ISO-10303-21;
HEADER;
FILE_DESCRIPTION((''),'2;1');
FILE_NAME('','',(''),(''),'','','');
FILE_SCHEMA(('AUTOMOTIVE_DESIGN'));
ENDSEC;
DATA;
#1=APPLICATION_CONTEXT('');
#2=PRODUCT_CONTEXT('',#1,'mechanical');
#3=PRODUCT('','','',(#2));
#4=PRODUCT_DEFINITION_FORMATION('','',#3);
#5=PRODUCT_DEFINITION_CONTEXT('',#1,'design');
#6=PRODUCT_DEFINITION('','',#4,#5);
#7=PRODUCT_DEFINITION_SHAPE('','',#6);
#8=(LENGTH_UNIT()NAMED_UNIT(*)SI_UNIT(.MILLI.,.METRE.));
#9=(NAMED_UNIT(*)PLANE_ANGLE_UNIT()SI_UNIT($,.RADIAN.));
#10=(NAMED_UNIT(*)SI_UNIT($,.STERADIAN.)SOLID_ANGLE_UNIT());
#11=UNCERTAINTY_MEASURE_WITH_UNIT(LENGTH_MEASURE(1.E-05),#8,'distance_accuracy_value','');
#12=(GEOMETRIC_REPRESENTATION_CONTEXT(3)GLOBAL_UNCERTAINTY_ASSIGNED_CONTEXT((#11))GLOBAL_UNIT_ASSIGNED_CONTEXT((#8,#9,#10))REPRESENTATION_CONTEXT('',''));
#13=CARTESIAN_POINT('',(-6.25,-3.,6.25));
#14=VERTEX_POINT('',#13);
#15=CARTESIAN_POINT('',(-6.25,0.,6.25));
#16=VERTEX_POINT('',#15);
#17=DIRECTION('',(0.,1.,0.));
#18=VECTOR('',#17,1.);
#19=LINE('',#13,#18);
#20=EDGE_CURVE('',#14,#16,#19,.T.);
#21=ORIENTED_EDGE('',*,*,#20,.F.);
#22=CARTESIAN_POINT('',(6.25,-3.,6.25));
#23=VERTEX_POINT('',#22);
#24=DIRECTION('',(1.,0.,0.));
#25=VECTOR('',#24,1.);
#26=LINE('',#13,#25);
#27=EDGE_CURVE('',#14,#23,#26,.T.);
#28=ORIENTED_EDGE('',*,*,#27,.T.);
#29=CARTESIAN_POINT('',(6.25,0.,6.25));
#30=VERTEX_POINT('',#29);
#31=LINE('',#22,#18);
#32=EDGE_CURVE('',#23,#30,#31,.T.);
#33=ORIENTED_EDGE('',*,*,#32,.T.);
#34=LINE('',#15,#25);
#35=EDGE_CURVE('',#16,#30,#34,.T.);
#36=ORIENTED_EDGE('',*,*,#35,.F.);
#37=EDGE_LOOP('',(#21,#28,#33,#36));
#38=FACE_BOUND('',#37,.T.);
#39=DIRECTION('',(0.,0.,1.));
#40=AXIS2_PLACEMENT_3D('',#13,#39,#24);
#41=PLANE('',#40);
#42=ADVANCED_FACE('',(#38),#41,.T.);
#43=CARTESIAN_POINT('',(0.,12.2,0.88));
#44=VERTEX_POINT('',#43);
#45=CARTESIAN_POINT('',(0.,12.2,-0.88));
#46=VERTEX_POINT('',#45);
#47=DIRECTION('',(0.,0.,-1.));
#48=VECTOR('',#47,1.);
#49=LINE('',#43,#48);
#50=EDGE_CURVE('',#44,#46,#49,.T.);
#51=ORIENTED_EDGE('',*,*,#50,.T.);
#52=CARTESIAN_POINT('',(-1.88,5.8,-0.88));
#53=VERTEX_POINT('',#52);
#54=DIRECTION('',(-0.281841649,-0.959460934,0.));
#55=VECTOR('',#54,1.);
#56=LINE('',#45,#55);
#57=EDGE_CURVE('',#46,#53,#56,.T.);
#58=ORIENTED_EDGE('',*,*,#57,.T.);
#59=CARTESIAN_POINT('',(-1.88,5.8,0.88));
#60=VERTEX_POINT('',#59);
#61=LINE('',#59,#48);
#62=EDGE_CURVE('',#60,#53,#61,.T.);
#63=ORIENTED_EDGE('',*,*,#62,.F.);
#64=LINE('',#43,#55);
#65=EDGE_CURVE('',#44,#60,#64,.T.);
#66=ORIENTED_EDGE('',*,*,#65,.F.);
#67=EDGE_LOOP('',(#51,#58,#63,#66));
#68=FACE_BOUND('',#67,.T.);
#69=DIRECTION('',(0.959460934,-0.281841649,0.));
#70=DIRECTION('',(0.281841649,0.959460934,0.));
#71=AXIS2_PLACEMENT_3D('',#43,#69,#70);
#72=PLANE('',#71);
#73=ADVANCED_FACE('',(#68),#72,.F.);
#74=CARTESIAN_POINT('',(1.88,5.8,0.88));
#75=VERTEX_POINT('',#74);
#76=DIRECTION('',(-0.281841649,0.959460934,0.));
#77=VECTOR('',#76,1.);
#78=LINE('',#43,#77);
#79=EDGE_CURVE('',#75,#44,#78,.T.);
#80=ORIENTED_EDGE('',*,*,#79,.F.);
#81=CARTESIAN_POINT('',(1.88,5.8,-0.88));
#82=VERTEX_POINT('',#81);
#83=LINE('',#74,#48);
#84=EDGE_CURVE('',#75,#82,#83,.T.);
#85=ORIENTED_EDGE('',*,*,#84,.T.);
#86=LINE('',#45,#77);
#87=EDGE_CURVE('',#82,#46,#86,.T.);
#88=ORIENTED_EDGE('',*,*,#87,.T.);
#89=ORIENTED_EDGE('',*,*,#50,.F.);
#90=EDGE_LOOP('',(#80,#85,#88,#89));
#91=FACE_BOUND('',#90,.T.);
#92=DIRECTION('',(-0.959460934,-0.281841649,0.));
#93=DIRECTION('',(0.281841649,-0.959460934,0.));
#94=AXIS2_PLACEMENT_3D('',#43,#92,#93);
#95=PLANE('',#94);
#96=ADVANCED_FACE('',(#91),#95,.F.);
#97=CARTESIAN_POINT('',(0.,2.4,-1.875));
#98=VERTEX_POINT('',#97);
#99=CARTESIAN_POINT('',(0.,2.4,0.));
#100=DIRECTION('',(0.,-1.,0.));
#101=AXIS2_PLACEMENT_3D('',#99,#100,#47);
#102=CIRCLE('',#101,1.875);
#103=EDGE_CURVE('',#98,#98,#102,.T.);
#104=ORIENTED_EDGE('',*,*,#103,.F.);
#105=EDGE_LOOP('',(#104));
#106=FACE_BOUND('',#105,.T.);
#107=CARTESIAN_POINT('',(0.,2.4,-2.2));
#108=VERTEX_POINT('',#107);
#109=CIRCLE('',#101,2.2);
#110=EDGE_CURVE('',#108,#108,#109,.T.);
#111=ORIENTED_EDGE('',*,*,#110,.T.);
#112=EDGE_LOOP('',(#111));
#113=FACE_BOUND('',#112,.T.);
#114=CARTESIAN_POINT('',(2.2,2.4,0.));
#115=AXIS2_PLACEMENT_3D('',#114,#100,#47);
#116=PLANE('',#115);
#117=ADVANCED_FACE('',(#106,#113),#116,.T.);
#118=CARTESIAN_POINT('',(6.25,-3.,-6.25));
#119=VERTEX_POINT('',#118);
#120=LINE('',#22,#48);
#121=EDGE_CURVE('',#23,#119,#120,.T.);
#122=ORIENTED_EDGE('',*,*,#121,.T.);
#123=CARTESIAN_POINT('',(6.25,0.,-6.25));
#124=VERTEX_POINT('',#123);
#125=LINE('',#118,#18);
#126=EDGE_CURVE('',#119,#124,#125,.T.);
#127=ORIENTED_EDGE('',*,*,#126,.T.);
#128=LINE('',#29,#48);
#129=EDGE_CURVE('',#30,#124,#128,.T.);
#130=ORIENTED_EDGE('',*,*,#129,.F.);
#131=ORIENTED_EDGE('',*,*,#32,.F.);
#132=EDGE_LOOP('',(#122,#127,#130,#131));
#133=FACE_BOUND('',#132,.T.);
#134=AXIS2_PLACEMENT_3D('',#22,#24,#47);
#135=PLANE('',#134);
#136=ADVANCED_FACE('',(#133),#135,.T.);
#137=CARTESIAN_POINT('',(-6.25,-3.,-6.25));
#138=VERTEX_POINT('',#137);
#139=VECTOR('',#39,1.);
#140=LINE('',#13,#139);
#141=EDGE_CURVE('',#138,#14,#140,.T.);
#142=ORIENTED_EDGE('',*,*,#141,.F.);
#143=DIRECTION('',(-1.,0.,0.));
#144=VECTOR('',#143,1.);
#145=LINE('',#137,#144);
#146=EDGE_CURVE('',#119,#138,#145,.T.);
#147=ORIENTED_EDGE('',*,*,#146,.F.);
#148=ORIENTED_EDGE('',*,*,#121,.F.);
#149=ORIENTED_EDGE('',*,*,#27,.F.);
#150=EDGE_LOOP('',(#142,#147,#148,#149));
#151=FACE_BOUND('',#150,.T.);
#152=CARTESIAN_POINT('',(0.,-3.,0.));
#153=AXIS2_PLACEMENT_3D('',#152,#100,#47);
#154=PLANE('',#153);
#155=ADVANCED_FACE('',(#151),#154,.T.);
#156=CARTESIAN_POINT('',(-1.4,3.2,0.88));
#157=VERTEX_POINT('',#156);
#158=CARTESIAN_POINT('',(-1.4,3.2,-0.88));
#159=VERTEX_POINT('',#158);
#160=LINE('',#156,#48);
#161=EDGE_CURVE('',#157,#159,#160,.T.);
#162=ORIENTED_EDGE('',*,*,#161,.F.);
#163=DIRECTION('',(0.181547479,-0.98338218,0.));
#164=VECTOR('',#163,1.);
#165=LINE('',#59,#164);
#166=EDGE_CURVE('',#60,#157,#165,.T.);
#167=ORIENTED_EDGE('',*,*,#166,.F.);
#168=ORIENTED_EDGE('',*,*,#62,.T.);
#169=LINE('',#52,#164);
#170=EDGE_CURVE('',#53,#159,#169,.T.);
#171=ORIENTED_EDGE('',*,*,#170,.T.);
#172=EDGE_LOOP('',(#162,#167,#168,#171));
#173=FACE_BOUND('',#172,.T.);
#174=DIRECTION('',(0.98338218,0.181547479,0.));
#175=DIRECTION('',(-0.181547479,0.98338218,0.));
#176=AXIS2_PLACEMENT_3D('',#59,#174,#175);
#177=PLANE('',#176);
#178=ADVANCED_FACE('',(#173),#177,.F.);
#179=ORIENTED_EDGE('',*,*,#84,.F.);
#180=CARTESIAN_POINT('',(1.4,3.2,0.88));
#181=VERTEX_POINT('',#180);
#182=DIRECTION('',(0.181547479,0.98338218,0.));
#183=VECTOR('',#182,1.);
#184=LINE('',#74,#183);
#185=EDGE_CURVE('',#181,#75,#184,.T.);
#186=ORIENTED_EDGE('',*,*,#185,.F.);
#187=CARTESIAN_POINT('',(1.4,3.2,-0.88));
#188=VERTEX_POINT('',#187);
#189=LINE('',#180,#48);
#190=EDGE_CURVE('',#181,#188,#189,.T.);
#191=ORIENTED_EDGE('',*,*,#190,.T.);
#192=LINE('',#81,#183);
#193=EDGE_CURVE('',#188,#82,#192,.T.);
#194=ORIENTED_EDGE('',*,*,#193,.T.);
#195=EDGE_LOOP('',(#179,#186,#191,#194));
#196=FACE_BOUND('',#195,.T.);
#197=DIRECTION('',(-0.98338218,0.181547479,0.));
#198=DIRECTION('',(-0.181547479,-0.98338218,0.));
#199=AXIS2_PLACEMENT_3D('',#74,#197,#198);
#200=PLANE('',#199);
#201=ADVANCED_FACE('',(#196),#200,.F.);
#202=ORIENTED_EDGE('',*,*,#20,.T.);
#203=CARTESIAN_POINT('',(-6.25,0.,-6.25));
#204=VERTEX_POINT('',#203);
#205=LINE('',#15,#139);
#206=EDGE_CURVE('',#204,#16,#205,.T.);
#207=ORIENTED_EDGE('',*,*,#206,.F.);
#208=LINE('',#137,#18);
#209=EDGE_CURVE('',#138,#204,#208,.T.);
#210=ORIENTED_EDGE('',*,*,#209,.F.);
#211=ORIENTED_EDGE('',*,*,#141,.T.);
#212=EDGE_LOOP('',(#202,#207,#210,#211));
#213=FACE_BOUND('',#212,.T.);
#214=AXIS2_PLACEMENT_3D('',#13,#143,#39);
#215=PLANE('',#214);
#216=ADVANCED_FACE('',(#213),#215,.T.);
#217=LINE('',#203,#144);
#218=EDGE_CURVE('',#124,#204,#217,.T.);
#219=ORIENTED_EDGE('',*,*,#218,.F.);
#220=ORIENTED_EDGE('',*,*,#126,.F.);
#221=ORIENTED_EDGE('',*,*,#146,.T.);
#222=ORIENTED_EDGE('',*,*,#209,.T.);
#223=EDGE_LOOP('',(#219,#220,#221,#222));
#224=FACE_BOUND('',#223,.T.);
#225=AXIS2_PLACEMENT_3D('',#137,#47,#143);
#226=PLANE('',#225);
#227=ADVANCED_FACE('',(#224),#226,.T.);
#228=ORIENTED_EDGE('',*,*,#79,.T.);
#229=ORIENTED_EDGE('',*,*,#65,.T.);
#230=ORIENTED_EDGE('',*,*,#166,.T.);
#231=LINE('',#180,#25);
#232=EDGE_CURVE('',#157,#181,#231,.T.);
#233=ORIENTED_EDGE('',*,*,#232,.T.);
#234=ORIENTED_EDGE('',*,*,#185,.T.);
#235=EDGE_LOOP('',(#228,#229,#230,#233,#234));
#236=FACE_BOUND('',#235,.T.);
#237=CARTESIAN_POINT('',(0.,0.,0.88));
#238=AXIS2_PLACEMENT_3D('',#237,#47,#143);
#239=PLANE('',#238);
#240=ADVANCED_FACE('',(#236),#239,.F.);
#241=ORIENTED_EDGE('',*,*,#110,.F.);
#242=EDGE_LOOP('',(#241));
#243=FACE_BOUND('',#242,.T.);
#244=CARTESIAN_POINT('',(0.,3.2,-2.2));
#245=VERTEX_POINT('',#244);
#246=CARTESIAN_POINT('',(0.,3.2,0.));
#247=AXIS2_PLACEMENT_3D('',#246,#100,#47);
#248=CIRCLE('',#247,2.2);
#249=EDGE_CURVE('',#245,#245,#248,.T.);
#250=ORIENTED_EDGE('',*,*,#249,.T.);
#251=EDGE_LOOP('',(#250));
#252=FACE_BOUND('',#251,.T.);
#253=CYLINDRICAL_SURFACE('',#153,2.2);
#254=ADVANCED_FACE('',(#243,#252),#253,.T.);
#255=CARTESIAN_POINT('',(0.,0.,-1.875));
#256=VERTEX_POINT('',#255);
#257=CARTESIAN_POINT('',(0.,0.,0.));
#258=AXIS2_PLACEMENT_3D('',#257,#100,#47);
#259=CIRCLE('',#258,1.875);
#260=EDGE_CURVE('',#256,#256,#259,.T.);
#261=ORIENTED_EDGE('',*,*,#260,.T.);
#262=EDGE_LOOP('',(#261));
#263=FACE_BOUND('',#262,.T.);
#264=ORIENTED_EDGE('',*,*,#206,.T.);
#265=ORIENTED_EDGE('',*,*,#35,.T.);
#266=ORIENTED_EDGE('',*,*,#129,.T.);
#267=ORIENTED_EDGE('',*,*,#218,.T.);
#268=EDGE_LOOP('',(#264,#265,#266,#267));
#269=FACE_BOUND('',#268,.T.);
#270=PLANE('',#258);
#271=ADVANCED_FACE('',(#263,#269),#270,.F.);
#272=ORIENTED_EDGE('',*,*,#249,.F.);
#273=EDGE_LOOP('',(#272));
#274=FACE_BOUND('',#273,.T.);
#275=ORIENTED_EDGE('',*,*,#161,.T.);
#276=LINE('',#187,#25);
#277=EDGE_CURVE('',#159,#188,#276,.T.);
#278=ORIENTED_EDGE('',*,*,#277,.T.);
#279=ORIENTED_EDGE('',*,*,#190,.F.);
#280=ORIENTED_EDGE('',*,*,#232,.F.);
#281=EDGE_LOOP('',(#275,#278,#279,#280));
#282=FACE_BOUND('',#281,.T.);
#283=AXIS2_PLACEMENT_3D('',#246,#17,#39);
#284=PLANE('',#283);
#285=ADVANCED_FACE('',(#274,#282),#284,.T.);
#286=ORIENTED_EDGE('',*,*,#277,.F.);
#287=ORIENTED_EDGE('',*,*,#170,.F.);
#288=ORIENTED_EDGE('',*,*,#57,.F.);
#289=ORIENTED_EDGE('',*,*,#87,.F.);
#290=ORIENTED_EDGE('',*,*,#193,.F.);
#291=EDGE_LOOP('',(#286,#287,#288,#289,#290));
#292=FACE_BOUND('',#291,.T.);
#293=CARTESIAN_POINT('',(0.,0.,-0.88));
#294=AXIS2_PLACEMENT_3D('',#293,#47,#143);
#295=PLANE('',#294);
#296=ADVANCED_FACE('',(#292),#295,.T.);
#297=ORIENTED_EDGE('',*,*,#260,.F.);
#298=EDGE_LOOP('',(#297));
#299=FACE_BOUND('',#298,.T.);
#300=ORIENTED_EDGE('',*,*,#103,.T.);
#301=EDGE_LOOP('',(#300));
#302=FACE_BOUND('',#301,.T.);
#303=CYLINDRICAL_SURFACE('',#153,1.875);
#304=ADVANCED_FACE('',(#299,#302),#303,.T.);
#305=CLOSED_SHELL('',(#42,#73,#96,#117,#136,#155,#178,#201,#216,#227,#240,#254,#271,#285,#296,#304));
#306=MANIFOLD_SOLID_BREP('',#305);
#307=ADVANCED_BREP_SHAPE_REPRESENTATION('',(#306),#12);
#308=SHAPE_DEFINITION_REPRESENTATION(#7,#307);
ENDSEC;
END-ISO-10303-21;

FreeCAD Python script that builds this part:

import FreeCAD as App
import Part
import Sketcher

V = App.Vector
Q = App.Units.Quantity


def add_polygon(sketch, points):
    """Adds a closed chain of lines whose ends are joined by coincident constraints."""
    first, n = sketch.GeometryCount, len(points)
    for a, b in zip(points, points[1:] + points[:1]):
        sketch.addGeometry(Part.LineSegment(App.Vector(*a, 0), App.Vector(*b, 0)), False)
    for i in range(n):
        sketch.addConstraint(Sketcher.Constraint("Coincident", first + i, 2, first + (i + 1) % n, 1))

doc = App.newDocument("Part")
params = doc.addObject("Spreadsheet::Sheet", "Params")
for row, (alias, value) in enumerate([
    ("sketch1_width", "12.5 mm"),
    ("pad1_length", "3 mm"),
    ("sketch2_width", "2.2 mm"),
    ("sketch2_height", "3.2 mm"),
    ("sketch2_height2", "2.4 mm"),
    ("revolution_angle", "360 deg"),
    ("sketch3_width", "2.8 mm"),
    ("pad2_length", "1.76 mm"),
], start=1):
    params.set(f"A{row}", alias)
    params.set(f"B{row}", "=" + value)
    params.setAlias(f"B{row}", alias)

body = doc.addObject("PartDesign::Body", "Body")

# Sketch on XZ plane
sketch1 = doc.addObject("Sketcher::SketchObject", "Sketch")
body.addObject(sketch1)
sketch1.AttachmentSupport = (doc.XZ_Plane, [""])
sketch1.MapMode = "FlatFace"
add_polygon(sketch1, [(-6.25, -6.25), (-6.25, 6.25), (6.25, 6.25), (6.25, -6.25)])  # lines 0-3
sketch1.addConstraint([
    Sketcher.Constraint("Vertical", 0),
    Sketcher.Constraint("Horizontal", 1),
    Sketcher.Constraint("Vertical", 2),
    Sketcher.Constraint("Horizontal", 3),
    Sketcher.Constraint("Symmetric", 0, 2, 2, 2, -1, 1),
    Sketcher.Constraint("Equal", 3, 0),
    Sketcher.Constraint("DistanceX", 1, 1, 1, 2, Q("12.5 mm")),
])
sketch1.setExpression("Constraints[10]", "Params.sketch1_width")
pad1 = doc.addObject("PartDesign::Pad", "Pad")
body.addObject(pad1)
pad1.Profile = sketch1
pad1.setExpression("Length", "Params.pad1_length")

# Sketch on XY plane
sketch2 = doc.addObject("Sketcher::SketchObject", "Sketch001")
body.addObject(sketch2)
sketch2.AttachmentSupport = (doc.XY_Plane, [""])
sketch2.MapMode = "FlatFace"
add_polygon(sketch2, [(2.2, 3.2), (0, 3.2), (0, 0), (1.875, 0), (1.875, 2.4), (2.2, 2.4)])  # lines 0-5
sketch2.addConstraint([
    Sketcher.Constraint("Horizontal", 0),
    Sketcher.Constraint("Vertical", 1),
    Sketcher.Constraint("Horizontal", 2),
    Sketcher.Constraint("Vertical", 3),
    Sketcher.Constraint("Horizontal", 4),
    Sketcher.Constraint("Vertical", 5),
    Sketcher.Constraint("Coincident", 1, 2, -1, 1),
    Sketcher.Constraint("DistanceX", 0, 2, 0, 1, Q("2.2 mm")),
    Sketcher.Constraint("DistanceY", 1, 2, 1, 1, Q("3.2 mm")),
    Sketcher.Constraint("DistanceY", 3, 1, 3, 2, Q("2.4 mm")),
    Sketcher.Constraint("DistanceX", 2, 1, 2, 2, Q("1.875 mm")),
])
sketch2.setExpression("Constraints[13]", "Params.sketch2_width")
sketch2.setExpression("Constraints[14]", "Params.sketch2_height")
sketch2.setExpression("Constraints[15]", "Params.sketch2_height2")
revolution = doc.addObject("PartDesign::Revolution", "Revolution")
body.addObject(revolution)
revolution.Profile = sketch2
revolution.ReferenceAxis = (sketch2, ["V_Axis"])
revolution.setExpression("Angle", "Params.revolution_angle")

# Sketch on XY plane
sketch3 = doc.addObject("Sketcher::SketchObject", "Sketch002")
body.addObject(sketch3)
sketch3.AttachmentSupport = (doc.XY_Plane, [""])
sketch3.MapMode = "FlatFace"
add_polygon(sketch3, [(1.88, 5.8), (0, 12.2), (-1.88, 5.8), (-1.4, 3.2), (1.4, 3.2)])  # lines 0-4
sketch3.addConstraint([
    Sketcher.Constraint("Horizontal", 3),
    Sketcher.Constraint("Symmetric", 1, 2, 4, 2, -2),
    Sketcher.Constraint("PointOnObject", 0, 2, -2),
    Sketcher.Constraint("Equal", 2, 4),
    Sketcher.Constraint("DistanceX", 3, 1, 3, 2, Q("2.8 mm")),
    Sketcher.Constraint("DistanceY", 2, 2, 0, 2, Q("9 mm")),
    Sketcher.Constraint("DistanceY", -1, 1, 0, 2, Q("12.2 mm")),
    Sketcher.Constraint("DistanceY", -1, 1, 1, 2, Q("5.8 mm")),
    Sketcher.Constraint("DistanceX", 1, 2, -1, 1, Q("1.88 mm")),
])
sketch3.setExpression("Constraints[9]", "Params.sketch3_width")
pad2 = doc.addObject("PartDesign::Pad", "Pad001")
body.addObject(pad2)
pad2.Profile = sketch3
pad2.setExpression("Length", "Params.pad2_length")
pad2.Midplane = True

doc.recompute()
